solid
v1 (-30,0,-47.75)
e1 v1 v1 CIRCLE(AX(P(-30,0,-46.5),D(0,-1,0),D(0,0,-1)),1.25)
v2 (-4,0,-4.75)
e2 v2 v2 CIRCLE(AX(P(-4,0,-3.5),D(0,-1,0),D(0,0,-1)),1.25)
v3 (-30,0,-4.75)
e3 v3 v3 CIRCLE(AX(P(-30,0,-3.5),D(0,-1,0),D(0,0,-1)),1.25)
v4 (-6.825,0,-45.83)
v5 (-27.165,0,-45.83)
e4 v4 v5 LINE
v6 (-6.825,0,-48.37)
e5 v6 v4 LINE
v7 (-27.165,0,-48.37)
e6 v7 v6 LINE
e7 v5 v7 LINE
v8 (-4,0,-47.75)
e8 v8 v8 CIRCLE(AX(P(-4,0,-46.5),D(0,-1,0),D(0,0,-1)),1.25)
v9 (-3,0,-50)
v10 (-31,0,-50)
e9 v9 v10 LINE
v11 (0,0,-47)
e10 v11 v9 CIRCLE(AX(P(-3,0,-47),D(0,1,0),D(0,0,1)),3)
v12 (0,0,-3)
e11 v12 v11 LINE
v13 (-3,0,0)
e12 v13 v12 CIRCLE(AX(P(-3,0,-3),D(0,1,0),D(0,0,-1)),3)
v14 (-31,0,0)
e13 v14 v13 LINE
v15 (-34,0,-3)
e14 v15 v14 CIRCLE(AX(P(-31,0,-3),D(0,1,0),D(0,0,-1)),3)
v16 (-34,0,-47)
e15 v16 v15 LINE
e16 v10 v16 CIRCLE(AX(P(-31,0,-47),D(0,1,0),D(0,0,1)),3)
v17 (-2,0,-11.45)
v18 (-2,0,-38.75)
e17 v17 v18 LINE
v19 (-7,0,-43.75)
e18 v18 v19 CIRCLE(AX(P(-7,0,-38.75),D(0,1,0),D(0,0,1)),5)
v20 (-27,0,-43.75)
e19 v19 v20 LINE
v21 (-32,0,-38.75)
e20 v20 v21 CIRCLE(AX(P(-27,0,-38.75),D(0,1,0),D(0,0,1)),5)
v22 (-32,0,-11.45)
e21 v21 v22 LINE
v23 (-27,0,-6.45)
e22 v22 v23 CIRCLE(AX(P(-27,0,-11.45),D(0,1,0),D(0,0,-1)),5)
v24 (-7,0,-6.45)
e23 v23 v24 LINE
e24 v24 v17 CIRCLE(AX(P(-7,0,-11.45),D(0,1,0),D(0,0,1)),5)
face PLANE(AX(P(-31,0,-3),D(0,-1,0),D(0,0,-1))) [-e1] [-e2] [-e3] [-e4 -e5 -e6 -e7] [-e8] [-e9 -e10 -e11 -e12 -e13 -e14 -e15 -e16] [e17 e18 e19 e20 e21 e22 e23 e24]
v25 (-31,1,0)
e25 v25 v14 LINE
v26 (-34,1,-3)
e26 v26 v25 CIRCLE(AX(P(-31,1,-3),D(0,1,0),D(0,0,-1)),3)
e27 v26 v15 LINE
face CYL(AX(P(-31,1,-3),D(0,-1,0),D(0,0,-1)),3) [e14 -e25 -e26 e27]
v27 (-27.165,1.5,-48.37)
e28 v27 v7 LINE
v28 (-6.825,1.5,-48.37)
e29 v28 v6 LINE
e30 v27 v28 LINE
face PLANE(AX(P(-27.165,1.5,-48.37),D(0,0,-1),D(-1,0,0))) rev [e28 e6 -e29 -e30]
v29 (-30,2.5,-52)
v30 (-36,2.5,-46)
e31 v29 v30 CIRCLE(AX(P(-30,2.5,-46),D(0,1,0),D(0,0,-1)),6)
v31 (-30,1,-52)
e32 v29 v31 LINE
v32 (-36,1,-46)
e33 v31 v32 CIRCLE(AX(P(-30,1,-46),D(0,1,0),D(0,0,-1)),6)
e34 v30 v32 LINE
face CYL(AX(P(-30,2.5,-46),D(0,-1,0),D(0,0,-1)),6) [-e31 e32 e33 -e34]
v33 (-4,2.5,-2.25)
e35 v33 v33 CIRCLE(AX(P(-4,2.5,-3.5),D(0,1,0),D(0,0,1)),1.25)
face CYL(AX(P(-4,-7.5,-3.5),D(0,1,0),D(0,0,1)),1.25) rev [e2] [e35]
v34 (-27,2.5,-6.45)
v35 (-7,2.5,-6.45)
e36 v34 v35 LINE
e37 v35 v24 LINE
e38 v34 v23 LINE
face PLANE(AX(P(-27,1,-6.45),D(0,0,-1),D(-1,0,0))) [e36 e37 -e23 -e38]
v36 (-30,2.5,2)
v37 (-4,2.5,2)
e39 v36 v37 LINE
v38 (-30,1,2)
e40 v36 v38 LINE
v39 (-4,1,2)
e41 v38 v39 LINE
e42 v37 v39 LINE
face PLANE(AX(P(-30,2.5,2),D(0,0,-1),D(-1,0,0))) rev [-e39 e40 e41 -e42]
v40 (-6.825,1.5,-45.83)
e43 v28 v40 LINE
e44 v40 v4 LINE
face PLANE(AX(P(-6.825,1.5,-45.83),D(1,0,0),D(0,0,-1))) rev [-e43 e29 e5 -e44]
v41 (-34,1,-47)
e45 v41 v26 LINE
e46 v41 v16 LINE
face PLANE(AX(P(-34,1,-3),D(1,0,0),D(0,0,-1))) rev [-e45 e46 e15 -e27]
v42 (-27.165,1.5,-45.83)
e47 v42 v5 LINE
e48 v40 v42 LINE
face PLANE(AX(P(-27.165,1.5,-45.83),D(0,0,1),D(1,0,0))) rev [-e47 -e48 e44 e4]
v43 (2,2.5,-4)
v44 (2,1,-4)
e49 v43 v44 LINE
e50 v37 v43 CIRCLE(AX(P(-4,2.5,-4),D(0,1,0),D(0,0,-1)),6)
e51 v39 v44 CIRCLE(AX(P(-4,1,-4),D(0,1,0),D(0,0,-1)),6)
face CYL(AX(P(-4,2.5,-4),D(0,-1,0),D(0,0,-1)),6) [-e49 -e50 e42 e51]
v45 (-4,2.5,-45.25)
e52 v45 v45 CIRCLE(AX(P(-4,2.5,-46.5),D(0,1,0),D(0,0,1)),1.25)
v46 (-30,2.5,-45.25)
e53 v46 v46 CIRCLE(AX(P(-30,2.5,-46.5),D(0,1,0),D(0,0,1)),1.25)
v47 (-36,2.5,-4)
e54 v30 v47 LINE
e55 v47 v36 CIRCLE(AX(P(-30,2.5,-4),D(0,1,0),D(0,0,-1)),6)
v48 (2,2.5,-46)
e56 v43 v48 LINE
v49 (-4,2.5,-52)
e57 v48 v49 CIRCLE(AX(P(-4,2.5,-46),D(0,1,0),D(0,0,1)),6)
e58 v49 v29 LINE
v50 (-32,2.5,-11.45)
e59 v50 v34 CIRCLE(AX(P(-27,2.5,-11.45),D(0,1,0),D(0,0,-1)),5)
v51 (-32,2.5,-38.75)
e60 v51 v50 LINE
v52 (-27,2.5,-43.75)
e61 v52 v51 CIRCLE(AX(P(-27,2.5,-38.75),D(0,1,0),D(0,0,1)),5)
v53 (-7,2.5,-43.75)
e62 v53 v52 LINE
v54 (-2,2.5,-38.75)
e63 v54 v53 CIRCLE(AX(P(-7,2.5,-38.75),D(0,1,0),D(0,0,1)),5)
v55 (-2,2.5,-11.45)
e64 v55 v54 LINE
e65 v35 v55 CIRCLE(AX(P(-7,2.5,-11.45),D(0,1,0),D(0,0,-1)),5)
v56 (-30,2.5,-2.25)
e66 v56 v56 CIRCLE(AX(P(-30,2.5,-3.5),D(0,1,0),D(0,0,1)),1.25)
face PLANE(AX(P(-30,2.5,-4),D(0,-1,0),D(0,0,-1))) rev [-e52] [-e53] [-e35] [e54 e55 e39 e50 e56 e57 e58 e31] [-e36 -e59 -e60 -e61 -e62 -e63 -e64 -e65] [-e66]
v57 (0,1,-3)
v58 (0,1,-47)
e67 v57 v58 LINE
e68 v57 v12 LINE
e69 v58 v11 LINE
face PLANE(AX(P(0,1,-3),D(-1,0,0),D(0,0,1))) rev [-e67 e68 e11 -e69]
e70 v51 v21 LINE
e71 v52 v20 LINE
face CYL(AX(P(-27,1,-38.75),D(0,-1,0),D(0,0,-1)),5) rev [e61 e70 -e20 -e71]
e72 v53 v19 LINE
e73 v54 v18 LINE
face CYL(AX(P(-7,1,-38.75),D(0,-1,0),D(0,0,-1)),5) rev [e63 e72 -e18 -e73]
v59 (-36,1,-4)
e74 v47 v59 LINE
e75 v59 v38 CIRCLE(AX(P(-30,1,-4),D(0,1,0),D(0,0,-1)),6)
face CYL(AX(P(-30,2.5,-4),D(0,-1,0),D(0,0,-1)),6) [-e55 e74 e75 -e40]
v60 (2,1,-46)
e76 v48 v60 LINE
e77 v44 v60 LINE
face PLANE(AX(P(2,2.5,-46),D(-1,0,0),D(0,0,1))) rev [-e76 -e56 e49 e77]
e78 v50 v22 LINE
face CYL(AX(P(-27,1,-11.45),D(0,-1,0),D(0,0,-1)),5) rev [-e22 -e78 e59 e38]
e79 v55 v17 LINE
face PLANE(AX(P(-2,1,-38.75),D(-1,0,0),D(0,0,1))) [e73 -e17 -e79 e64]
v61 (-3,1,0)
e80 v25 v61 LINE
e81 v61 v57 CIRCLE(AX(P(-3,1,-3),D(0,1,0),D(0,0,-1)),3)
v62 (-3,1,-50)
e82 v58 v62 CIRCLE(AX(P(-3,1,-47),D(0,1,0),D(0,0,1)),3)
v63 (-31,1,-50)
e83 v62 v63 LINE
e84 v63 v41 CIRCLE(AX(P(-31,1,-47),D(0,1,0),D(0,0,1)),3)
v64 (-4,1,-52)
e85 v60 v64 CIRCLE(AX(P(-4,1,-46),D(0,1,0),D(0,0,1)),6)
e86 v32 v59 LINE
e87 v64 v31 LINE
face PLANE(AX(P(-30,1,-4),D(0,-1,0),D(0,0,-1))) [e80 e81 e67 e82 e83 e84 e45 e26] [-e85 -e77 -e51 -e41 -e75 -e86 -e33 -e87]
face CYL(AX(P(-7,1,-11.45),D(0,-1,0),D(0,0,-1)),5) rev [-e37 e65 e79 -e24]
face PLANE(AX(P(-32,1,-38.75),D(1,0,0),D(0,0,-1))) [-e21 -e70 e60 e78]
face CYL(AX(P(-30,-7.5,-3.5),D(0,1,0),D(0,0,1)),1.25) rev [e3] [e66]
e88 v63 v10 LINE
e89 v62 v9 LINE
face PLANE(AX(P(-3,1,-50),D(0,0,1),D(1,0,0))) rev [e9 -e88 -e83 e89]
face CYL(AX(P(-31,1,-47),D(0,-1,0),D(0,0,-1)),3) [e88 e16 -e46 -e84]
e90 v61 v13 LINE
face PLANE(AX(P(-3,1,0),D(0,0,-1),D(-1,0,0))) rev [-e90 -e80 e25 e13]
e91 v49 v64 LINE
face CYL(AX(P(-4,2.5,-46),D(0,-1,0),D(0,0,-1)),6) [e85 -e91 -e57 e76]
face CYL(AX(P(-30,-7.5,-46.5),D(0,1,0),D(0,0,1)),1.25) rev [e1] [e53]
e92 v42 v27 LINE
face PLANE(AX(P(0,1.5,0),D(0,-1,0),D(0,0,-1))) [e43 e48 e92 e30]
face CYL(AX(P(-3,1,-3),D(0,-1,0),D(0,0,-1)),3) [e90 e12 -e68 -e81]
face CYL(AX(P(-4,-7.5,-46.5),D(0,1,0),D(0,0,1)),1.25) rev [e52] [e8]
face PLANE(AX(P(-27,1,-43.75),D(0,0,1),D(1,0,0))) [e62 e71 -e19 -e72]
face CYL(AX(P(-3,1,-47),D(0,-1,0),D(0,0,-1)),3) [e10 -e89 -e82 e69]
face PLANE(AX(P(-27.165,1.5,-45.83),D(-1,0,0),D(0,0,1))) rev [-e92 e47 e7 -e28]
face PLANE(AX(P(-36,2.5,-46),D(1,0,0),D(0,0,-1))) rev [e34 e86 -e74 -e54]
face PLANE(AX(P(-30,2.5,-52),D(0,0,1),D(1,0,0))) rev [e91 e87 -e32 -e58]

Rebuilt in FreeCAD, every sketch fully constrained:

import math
import FreeCAD as App
import Part
import Sketcher
from FreeCAD import Vector

doc = App.newDocument("Part")
body = doc.addObject("PartDesign::Body", "Body")

# Sketch on XZ plane
sketch1 = body.newObject("Sketcher::SketchObject", "Sketch")
sketch1.AttachmentSupport = (doc.getObject("XZ_Plane"), [""])
sketch1.MapMode = "FlatFace"
sketch1.addGeometry(Part.LineSegment(Vector(-31, 0, 0), Vector(-3, 0, 0)), False)
sketch1.addGeometry(Part.ArcOfCircle(Part.Circle(Vector(-3, -3, 0), Vector(0, 0, 1), 3), math.radians(0), math.radians(90)), False)
sketch1.addGeometry(Part.LineSegment(Vector(0, -3, 0), Vector(0, -47, 0)), False)
sketch1.addGeometry(Part.ArcOfCircle(Part.Circle(Vector(-3, -47, 0), Vector(0, 0, 1), 3), math.radians(-90), math.radians(0)), False)
sketch1.addGeometry(Part.LineSegment(Vector(-3, -50, 0), Vector(-31, -50, 0)), False)
sketch1.addGeometry(Part.ArcOfCircle(Part.Circle(Vector(-31, -47, 0), Vector(0, 0, 1), 3), math.radians(180), math.radians(270)), False)
sketch1.addGeometry(Part.LineSegment(Vector(-34, -47, 0), Vector(-34, -3, 0)), False)
sketch1.addGeometry(Part.ArcOfCircle(Part.Circle(Vector(-31, -3, 0), Vector(0, 0, 1), 3), math.radians(90), math.radians(180)), False)
sketch1.addGeometry(Part.LineSegment(Vector(-27, -43.8, 0), Vector(-7, -43.8, 0)), False)
sketch1.addGeometry(Part.ArcOfCircle(Part.Circle(Vector(-7, -38.8, 0), Vector(0, 0, 1), 5), math.radians(-90), math.radians(0)), False)
sketch1.addGeometry(Part.LineSegment(Vector(-2, -38.8, 0), Vector(-2, -11.4, 0)), False)
sketch1.addGeometry(Part.ArcOfCircle(Part.Circle(Vector(-7, -11.4, 0), Vector(0, 0, 1), 5), math.radians(0), math.radians(90)), False)
sketch1.addGeometry(Part.LineSegment(Vector(-7, -6.5, 0), Vector(-27, -6.5, 0)), False)
sketch1.addGeometry(Part.ArcOfCircle(Part.Circle(Vector(-27, -11.4, 0), Vector(0, 0, 1), 5), math.radians(90), math.radians(180)), False)
sketch1.addGeometry(Part.LineSegment(Vector(-32, -11.4, 0), Vector(-32, -38.8, 0)), False)
sketch1.addGeometry(Part.ArcOfCircle(Part.Circle(Vector(-27, -38.8, 0), Vector(0, 0, 1), 5), math.radians(180), math.radians(270)), False)
sketch1.addConstraint(Sketcher.Constraint("Tangent", 0, 2, 1, 2))
sketch1.addConstraint(Sketcher.Constraint("Tangent", 1, 1, 2, 1))
sketch1.addConstraint(Sketcher.Constraint("Tangent", 2, 2, 3, 2))
sketch1.addConstraint(Sketcher.Constraint("Tangent", 3, 1, 4, 1))
sketch1.addConstraint(Sketcher.Constraint("Tangent", 4, 2, 5, 2))
sketch1.addConstraint(Sketcher.Constraint("Tangent", 5, 1, 6, 1))
sketch1.addConstraint(Sketcher.Constraint("Tangent", 6, 2, 7, 2))
sketch1.addConstraint(Sketcher.Constraint("Tangent", 7, 1, 0, 1))
sketch1.addConstraint(Sketcher.Constraint("Tangent", 8, 2, 9, 1))
sketch1.addConstraint(Sketcher.Constraint("Tangent", 9, 2, 10, 1))
sketch1.addConstraint(Sketcher.Constraint("Tangent", 10, 2, 11, 1))
sketch1.addConstraint(Sketcher.Constraint("Tangent", 11, 2, 12, 1))
sketch1.addConstraint(Sketcher.Constraint("Tangent", 12, 2, 13, 1))
sketch1.addConstraint(Sketcher.Constraint("Tangent", 13, 2, 14, 1))
sketch1.addConstraint(Sketcher.Constraint("Tangent", 14, 2, 15, 1))
sketch1.addConstraint(Sketcher.Constraint("Tangent", 15, 2, 8, 1))
sketch1.addConstraint(Sketcher.Constraint("Horizontal", 0))
sketch1.addConstraint(Sketcher.Constraint("Vertical", 2))
sketch1.addConstraint(Sketcher.Constraint("Horizontal", 4))
sketch1.addConstraint(Sketcher.Constraint("Vertical", 6))
sketch1.addConstraint(Sketcher.Constraint("Horizontal", 8))
sketch1.addConstraint(Sketcher.Constraint("Vertical", 10))
sketch1.addConstraint(Sketcher.Constraint("Horizontal", 12))
sketch1.addConstraint(Sketcher.Constraint("Vertical", 14))
sketch1.addConstraint(Sketcher.Constraint("Equal", 1, 3))
sketch1.addConstraint(Sketcher.Constraint("Equal", 3, 5))
sketch1.addConstraint(Sketcher.Constraint("Equal", 5, 7))
sketch1.addConstraint(Sketcher.Constraint("Equal", 9, 11))
sketch1.addConstraint(Sketcher.Constraint("Equal", 11, 13))
sketch1.addConstraint(Sketcher.Constraint("Equal", 13, 15))
sketch1.addConstraint(Sketcher.Constraint("PointOnObject", 0, 2, -1))
sketch1.addConstraint(Sketcher.Constraint("PointOnObject", 1, 1, -2))
sketch1.addConstraint(Sketcher.Constraint("Radius", 1, 3.0))
sketch1.addConstraint(Sketcher.Constraint("Radius", 9, 5.0))
sketch1.addConstraint(Sketcher.Constraint("DistanceX", 0, 1, 0, 2, 28.0))
sketch1.addConstraint(Sketcher.Constraint("DistanceX", 8, 1, 8, 2, 20.0))
sketch1.addConstraint(Sketcher.Constraint("DistanceY", 2, 2, 2, 1, 44.0))
sketch1.addConstraint(Sketcher.Constraint("DistanceY", 10, 1, 10, 2, 27.3))
sketch1.addConstraint(Sketcher.Constraint("DistanceX", 9, 3, -1, 1, 7.0))
sketch1.addConstraint(Sketcher.Constraint("DistanceY", 9, 3, -1, 1, 38.75))
pad1 = body.newObject("PartDesign::Pad", "Pad")
pad1.Profile = sketch1
pad1.Length = 1
pad1.Reversed = True

# Sketch on XZ plane
sketch2 = body.newObject("Sketcher::SketchObject", "Sketch001")
sketch2.AttachmentSupport = (doc.getObject("XZ_Plane"), [""])
sketch2.MapMode = "FlatFace"
sketch2.AttachmentOffset = App.Placement(Vector(0, 0, -1), App.Rotation())
sketch2.addGeometry(Part.LineSegment(Vector(-4, -52, 0), Vector(-30, -52, 0)), False)
sketch2.addGeometry(Part.ArcOfCircle(Part.Circle(Vector(-30, -46, 0), Vector(0, 0, 1), 6), math.radians(180), math.radians(270)), False)
sketch2.addGeometry(Part.LineSegment(Vector(-36, -46, 0), Vector(-36, -4, 0)), False)
sketch2.addGeometry(Part.ArcOfCircle(Part.Circle(Vector(-30, -4, 0), Vector(0, 0, 1), 6), math.radians(90), math.radians(180)), False)
sketch2.addGeometry(Part.LineSegment(Vector(-30, 2, 0), Vector(-4, 2, 0)), False)
sketch2.addGeometry(Part.ArcOfCircle(Part.Circle(Vector(-4, -4, 0), Vector(0, 0, 1), 6), math.radians(0), math.radians(90)), False)
sketch2.addGeometry(Part.LineSegment(Vector(2, -4, 0), Vector(2, -46, 0)), False)
sketch2.addGeometry(Part.ArcOfCircle(Part.Circle(Vector(-4, -46, 0), Vector(0, 0, 1), 6), math.radians(-90), math.radians(0)), False)
sketch2.addGeometry(Part.ArcOfCircle(Part.Circle(Vector(-27, -11, 0), Vector(0, 0, 1), 5), math.radians(90), math.radians(180)), False)
sketch2.addGeometry(Part.LineSegment(Vector(-32, -11, 0), Vector(-32, -39, 0)), False)
sketch2.addGeometry(Part.ArcOfCircle(Part.Circle(Vector(-27, -39, 0), Vector(0, 0, 1), 5), math.radians(180), math.radians(270)), False)
sketch2.addGeometry(Part.LineSegment(Vector(-27, -44, 0), Vector(-7, -44, 0)), False)
sketch2.addGeometry(Part.ArcOfCircle(Part.Circle(Vector(-7, -39, 0), Vector(0, 0, 1), 5), math.radians(-90), math.radians(0)), False)
sketch2.addGeometry(Part.LineSegment(Vector(-2, -39, 0), Vector(-2, -11, 0)), False)
sketch2.addGeometry(Part.ArcOfCircle(Part.Circle(Vector(-7, -11, 0), Vector(0, 0, 1), 5), math.radians(0), math.radians(90)), False)
sketch2.addGeometry(Part.LineSegment(Vector(-7, -6, 0), Vector(-27, -6, 0)), False)
sketch2.addConstraint(Sketcher.Constraint("Tangent", 0, 2, 1, 2))
sketch2.addConstraint(Sketcher.Constraint("Tangent", 1, 1, 2, 1))
sketch2.addConstraint(Sketcher.Constraint("Tangent", 2, 2, 3, 2))
sketch2.addConstraint(Sketcher.Constraint("Tangent", 3, 1, 4, 1))
sketch2.addConstraint(Sketcher.Constraint("Tangent", 4, 2, 5, 2))
sketch2.addConstraint(Sketcher.Constraint("Tangent", 5, 1, 6, 1))
sketch2.addConstraint(Sketcher.Constraint("Tangent", 6, 2, 7, 2))
sketch2.addConstraint(Sketcher.Constraint("Tangent", 7, 1, 0, 1))
sketch2.addConstraint(Sketcher.Constraint("Tangent", 8, 2, 9, 1))
sketch2.addConstraint(Sketcher.Constraint("Tangent", 9, 2, 10, 1))
sketch2.addConstraint(Sketcher.Constraint("Tangent", 10, 2, 11, 1))
sketch2.addConstraint(Sketcher.Constraint("Tangent", 11, 2, 12, 1))
sketch2.addConstraint(Sketcher.Constraint("Tangent", 12, 2, 13, 1))
sketch2.addConstraint(Sketcher.Constraint("Tangent", 13, 2, 14, 1))
sketch2.addConstraint(Sketcher.Constraint("Tangent", 14, 2, 15, 1))
sketch2.addConstraint(Sketcher.Constraint("Tangent", 15, 2, 8, 1))
sketch2.addConstraint(Sketcher.Constraint("Horizontal", 0))
sketch2.addConstraint(Sketcher.Constraint("Vertical", 2))
sketch2.addConstraint(Sketcher.Constraint("Horizontal", 4))
sketch2.addConstraint(Sketcher.Constraint("Vertical", 6))
sketch2.addConstraint(Sketcher.Constraint("Vertical", 9))
sketch2.addConstraint(Sketcher.Constraint("Horizontal", 11))
sketch2.addConstraint(Sketcher.Constraint("Vertical", 13))
sketch2.addConstraint(Sketcher.Constraint("Horizontal", 15))
sketch2.addConstraint(Sketcher.Constraint("Equal", 1, 3))
sketch2.addConstraint(Sketcher.Constraint("Equal", 3, 5))
sketch2.addConstraint(Sketcher.Constraint("Equal", 5, 7))
sketch2.addConstraint(Sketcher.Constraint("Equal", 8, 10))
sketch2.addConstraint(Sketcher.Constraint("Equal", 10, 12))
sketch2.addConstraint(Sketcher.Constraint("Equal", 12, 14))
sketch2.addConstraint(Sketcher.Constraint("Radius", 1, 6.0))
sketch2.addConstraint(Sketcher.Constraint("Radius", 8, 5.0))
sketch2.addConstraint(Sketcher.Constraint("DistanceX", 0, 2, 0, 1, 26.0))
sketch2.addConstraint(Sketcher.Constraint("DistanceX", 11, 1, 11, 2, 20.0))
sketch2.addConstraint(Sketcher.Constraint("DistanceY", 2, 1, 2, 2, 42.0))
sketch2.addConstraint(Sketcher.Constraint("DistanceY", 9, 2, 9, 1, 27.3))
sketch2.addConstraint(Sketcher.Constraint("DistanceX", 1, 3, -1, 1, 30.0))
sketch2.addConstraint(Sketcher.Constraint("DistanceY", 1, 3, -1, 1, 46.0))
sketch2.addConstraint(Sketcher.Constraint("DistanceX", 8, 3, -1, 1, 27.0))
sketch2.addConstraint(Sketcher.Constraint("DistanceY", 8, 3, -1, 1, 11.45))
pad2 = body.newObject("PartDesign::Pad", "Pad001")
pad2.Profile = sketch2
pad2.Length = 1.5
pad2.Reversed = True

# Sketch on XZ plane
sketch3 = body.newObject("Sketcher::SketchObject", "Sketch002")
sketch3.AttachmentSupport = (doc.getObject("XZ_Plane"), [""])
sketch3.MapMode = "FlatFace"
sketch3.addGeometry(Part.LineSegment(Vector(-27.2, -45.8, 0), Vector(-27.2, -48.4, 0)), False)
sketch3.addGeometry(Part.LineSegment(Vector(-27.2, -48.4, 0), Vector(-6.8, -48.4, 0)), False)
sketch3.addGeometry(Part.LineSegment(Vector(-6.8, -48.4, 0), Vector(-6.8, -45.8, 0)), False)
sketch3.addGeometry(Part.LineSegment(Vector(-6.8, -45.8, 0), Vector(-27.2, -45.8, 0)), False)
sketch3.addConstraint(Sketcher.Constraint("Coincident", 0, 2, 1, 1))
sketch3.addConstraint(Sketcher.Constraint("Coincident", 1, 2, 2, 1))
sketch3.addConstraint(Sketcher.Constraint("Coincident", 2, 2, 3, 1))
sketch3.addConstraint(Sketcher.Constraint("Coincident", 3, 2, 0, 1))
sketch3.addConstraint(Sketcher.Constraint("Vertical", 0))
sketch3.addConstraint(Sketcher.Constraint("Horizontal", 1))
sketch3.addConstraint(Sketcher.Constraint("Vertical", 2))
sketch3.addConstraint(Sketcher.Constraint("Horizontal", 3))
sketch3.addConstraint(Sketcher.Constraint("DistanceX", 1, 1, 1, 2, 20.34))
sketch3.addConstraint(Sketcher.Constraint("DistanceY", 0, 2, 0, 1, 2.54))
sketch3.addConstraint(Sketcher.Constraint("DistanceY", 0, 2, -1, 1, 48.37))
sketch3.addConstraint(Sketcher.Constraint("DistanceX", 0, 2, -1, 1, 27.165))
pocket1 = body.newObject("PartDesign::Pocket", "Pocket")
pocket1.Profile = sketch3
pocket1.Length = 1.5

# Sketch on XZ plane
sketch4 = body.newObject("Sketcher::SketchObject", "Sketch003")
sketch4.AttachmentSupport = (doc.getObject("XZ_Plane"), [""])
sketch4.MapMode = "FlatFace"
sketch4.AttachmentOffset = App.Placement(Vector(0, 0, -2.5), App.Rotation())
sketch4.addGeometry(Part.Circle(Vector(-30, -46.5, 0), Vector(0, 0, 1), 1.2), False)
sketch4.addGeometry(Part.Circle(Vector(-4, -46.5, 0), Vector(0, 0, 1), 1.2), False)
sketch4.addGeometry(Part.Circle(Vector(-4, -3.5, 0), Vector(0, 0, 1), 1.2), False)
sketch4.addGeometry(Part.Circle(Vector(-30, -3.5, 0), Vector(0, 0, 1), 1.2), False)
sketch4.addConstraint(Sketcher.Constraint("Equal", 0, 1))
sketch4.addConstraint(Sketcher.Constraint("Equal", 1, 2))
sketch4.addConstraint(Sketcher.Constraint("Equal", 2, 3))
sketch4.addConstraint(Sketcher.Constraint("Horizontal", 0, 3, 1, 3))
sketch4.addConstraint(Sketcher.Constraint("Horizontal", 2, 3, 3, 3))
sketch4.addConstraint(Sketcher.Constraint("Vertical", 1, 3, 2, 3))
sketch4.addConstraint(Sketcher.Constraint("Vertical", 0, 3, 3, 3))
sketch4.addConstraint(Sketcher.Constraint("Diameter", 0, 2.5))
sketch4.addConstraint(Sketcher.Constraint("DistanceX", 0, 3, -1, 1, 30.0))
sketch4.addConstraint(Sketcher.Constraint("DistanceX", 1, 3, -1, 1, 4.0))
sketch4.addConstraint(Sketcher.Constraint("DistanceY", 1, 3, 2, 3, 43.0))
sketch4.addConstraint(Sketcher.Constraint("DistanceY", 0, 3, -1, 1, 46.5))
pocket2 = body.newObject("PartDesign::Pocket", "Pocket001")
pocket2.Profile = sketch4
pocket2.Length = 10
pocket2.Reversed = True

doc.recompute()
